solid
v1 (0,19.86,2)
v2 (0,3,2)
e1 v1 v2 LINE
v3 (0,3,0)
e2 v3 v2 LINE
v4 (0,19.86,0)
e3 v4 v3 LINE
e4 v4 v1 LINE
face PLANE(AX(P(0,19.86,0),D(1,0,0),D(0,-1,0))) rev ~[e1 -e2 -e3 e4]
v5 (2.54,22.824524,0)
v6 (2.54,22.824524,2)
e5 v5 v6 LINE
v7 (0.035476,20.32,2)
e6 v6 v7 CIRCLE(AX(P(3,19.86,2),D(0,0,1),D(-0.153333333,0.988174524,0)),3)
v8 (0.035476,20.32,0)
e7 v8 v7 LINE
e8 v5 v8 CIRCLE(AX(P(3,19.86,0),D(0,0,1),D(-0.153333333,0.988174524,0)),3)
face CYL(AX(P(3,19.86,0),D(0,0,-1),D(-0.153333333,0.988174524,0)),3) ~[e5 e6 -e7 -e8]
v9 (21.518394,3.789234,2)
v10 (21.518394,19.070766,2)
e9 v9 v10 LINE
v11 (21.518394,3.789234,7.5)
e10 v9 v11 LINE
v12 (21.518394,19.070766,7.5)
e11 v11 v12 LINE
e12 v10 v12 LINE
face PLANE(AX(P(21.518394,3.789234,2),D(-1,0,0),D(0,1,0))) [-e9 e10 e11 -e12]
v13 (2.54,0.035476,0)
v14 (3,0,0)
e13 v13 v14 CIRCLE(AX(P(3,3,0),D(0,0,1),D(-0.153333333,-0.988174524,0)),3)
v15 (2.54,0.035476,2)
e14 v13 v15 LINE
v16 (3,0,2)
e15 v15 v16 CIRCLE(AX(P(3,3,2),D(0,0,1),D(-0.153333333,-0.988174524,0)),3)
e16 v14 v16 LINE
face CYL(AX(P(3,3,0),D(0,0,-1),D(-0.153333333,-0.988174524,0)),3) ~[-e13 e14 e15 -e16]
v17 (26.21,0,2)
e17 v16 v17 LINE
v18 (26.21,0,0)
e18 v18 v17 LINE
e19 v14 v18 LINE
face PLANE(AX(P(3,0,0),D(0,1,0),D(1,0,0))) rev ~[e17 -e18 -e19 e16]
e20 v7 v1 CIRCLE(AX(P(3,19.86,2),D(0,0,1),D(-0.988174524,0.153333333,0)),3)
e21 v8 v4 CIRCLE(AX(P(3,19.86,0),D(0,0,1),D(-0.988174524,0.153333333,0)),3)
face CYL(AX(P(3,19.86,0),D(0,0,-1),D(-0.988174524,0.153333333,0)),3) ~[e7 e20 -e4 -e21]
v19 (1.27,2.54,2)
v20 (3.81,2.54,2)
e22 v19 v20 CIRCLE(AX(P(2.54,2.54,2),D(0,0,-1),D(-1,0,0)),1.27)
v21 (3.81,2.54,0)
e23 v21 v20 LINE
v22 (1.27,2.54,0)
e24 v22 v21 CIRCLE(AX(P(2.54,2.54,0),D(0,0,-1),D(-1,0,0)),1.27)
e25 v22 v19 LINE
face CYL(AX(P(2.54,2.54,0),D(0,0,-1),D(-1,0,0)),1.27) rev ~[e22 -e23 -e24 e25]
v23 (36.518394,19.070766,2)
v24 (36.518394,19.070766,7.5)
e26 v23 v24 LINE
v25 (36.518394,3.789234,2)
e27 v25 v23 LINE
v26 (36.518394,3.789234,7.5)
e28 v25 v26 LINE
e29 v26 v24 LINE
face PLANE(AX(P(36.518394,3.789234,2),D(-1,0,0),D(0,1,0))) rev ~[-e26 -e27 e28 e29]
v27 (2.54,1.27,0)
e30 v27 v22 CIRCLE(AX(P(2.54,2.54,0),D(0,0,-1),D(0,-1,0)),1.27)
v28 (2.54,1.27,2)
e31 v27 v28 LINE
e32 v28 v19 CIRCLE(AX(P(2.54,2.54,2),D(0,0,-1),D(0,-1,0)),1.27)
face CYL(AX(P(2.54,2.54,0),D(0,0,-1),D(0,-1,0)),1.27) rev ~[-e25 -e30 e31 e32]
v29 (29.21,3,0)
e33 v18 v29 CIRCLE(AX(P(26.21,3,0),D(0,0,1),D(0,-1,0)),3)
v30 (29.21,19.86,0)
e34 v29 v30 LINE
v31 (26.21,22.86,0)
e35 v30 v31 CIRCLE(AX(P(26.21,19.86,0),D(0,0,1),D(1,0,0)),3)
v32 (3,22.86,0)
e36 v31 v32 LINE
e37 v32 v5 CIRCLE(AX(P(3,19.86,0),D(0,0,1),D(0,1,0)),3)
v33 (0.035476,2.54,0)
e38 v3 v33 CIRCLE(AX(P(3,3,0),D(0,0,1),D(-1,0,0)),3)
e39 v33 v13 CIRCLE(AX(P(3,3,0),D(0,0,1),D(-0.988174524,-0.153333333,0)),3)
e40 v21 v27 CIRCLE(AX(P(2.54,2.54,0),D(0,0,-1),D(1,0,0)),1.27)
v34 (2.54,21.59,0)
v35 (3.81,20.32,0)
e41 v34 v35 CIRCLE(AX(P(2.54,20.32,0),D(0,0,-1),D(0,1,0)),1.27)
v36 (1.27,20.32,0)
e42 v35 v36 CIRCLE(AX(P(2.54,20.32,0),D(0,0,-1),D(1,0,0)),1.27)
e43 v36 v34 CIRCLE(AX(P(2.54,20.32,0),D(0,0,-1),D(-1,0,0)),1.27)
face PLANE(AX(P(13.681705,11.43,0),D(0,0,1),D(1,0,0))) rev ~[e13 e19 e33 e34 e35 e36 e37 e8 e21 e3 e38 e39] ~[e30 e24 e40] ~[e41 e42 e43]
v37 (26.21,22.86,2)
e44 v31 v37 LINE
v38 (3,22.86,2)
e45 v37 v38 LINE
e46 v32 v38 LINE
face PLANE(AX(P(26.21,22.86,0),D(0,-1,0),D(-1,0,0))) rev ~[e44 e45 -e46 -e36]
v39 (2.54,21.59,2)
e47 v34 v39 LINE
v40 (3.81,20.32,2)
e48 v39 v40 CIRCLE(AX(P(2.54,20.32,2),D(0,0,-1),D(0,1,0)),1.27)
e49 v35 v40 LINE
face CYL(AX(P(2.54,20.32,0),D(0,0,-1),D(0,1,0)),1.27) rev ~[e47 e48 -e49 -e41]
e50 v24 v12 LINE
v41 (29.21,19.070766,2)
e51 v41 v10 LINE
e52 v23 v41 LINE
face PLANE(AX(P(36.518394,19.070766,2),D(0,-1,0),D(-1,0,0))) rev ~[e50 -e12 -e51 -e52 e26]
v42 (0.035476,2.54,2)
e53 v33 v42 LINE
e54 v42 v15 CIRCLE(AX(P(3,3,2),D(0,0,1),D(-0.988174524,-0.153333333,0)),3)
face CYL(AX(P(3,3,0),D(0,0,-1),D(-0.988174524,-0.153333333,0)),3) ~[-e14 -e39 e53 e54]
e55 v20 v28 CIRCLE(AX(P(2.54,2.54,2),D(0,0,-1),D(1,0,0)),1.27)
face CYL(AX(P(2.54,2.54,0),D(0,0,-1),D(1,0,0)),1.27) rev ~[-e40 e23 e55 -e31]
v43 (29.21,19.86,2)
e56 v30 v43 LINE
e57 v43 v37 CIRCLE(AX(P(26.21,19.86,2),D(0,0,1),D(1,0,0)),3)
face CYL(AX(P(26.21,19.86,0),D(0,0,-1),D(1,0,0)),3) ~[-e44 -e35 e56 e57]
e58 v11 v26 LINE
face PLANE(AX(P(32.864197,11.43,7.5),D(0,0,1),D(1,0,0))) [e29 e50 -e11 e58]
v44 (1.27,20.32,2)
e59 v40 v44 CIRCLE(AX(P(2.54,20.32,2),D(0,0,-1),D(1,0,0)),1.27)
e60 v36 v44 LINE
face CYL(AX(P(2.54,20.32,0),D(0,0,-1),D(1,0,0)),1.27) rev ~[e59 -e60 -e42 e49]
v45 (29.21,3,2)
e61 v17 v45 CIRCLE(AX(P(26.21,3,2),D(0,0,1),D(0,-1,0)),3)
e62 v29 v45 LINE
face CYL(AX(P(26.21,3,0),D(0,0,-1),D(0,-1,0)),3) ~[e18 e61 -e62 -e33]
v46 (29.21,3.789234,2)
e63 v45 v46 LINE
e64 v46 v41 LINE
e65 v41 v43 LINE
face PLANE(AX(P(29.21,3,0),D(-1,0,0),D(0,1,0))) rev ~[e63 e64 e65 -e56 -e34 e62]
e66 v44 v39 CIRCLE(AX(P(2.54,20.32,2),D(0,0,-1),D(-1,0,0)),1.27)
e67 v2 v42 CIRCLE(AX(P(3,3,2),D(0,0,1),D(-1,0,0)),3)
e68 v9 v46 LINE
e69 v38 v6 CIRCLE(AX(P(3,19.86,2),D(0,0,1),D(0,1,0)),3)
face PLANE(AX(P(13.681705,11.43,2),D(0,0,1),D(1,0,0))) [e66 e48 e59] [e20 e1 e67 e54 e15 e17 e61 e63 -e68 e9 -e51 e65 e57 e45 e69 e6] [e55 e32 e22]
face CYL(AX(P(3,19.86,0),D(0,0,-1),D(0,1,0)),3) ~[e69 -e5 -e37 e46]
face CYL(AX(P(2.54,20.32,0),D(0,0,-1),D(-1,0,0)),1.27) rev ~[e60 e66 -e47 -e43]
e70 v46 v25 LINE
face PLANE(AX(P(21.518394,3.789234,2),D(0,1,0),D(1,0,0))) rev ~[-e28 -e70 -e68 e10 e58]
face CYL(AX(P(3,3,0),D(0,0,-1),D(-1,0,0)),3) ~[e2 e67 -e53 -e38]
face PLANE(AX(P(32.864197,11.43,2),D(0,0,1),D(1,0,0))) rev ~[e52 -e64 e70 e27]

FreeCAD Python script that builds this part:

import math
import FreeCAD as App
import Part
import Sketcher

V = App.Vector
Q = App.Units.Quantity

doc = App.newDocument("Part")
body = doc.addObject("PartDesign::Body", "Body")

sketch1 = body.newObject("Sketcher::SketchObject", "Sketch")
sketch1.AttachmentSupport = (doc.getObject("XY_Plane"), [""])
sketch1.MapMode = "FlatFace"
sketch1.addGeometry([
    Part.ArcOfCircle(Part.Circle(V(3, 3, 0), V(0, 0, 1), 3), math.radians(-98.82), math.radians(-90)),
    Part.LineSegment(V(3, 0, 0), V(26.21, 0, 0)),
    Part.ArcOfCircle(Part.Circle(V(26.21, 3, 0), V(0, 0, 1), 3), math.radians(-90), math.radians(0)),
    Part.LineSegment(V(29.21, 3, 0), V(29.21, 19.86, 0)),
    Part.ArcOfCircle(Part.Circle(V(26.21, 19.86, 0), V(0, 0, 1), 3), math.radians(0), math.radians(90)),
    Part.LineSegment(V(26.21, 22.86, 0), V(3, 22.86, 0)),
    Part.ArcOfCircle(Part.Circle(V(3, 19.86, 0), V(0, 0, 1), 3), math.radians(90), math.radians(98.82)),
    Part.ArcOfCircle(Part.Circle(V(3, 19.86, 0), V(0, 0, 1), 3), math.radians(99), math.radians(171)),
    Part.ArcOfCircle(Part.Circle(V(3, 19.86, 0), V(0, 0, 1), 3), math.radians(171.18), math.radians(180)),
    Part.LineSegment(V(0, 19.86, 0), V(0, 3, 0)),
    Part.ArcOfCircle(Part.Circle(V(3, 3, 0), V(0, 0, 1), 3), math.radians(-180), math.radians(-171.18)),
    Part.ArcOfCircle(Part.Circle(V(3, 3, 0), V(0, 0, 1), 3), math.radians(-171), math.radians(-99)),
    Part.ArcOfCircle(Part.Circle(V(2.54, 2.54, 0), V(0, 0, 1), 1.27), math.radians(0), math.radians(180)),
    Part.ArcOfCircle(Part.Circle(V(2.54, 2.54, 0), V(0, 0, 1), 1.27), math.radians(-90), math.radians(0)),
    Part.ArcOfCircle(Part.Circle(V(2.54, 2.54, 0), V(0, 0, 1), 1.27), math.radians(180), math.radians(270)),
    Part.ArcOfCircle(Part.Circle(V(2.54, 20.32, 0), V(0, 0, 1), 1.27), math.radians(0), math.radians(90)),
    Part.ArcOfCircle(Part.Circle(V(2.54, 20.32, 0), V(0, 0, 1), 1.27), math.radians(180), math.radians(360)),
    Part.ArcOfCircle(Part.Circle(V(2.54, 20.32, 0), V(0, 0, 1), 1.27), math.radians(90), math.radians(180)),
], False)
sketch1.addConstraint([
    Sketcher.Constraint("Tangent", 0, 2, 1, 1),
    Sketcher.Constraint("Tangent", 1, 2, 2, 1),
    Sketcher.Constraint("Tangent", 2, 2, 3, 1),
    Sketcher.Constraint("Tangent", 3, 2, 4, 1),
    Sketcher.Constraint("Tangent", 4, 2, 5, 1),
    Sketcher.Constraint("Tangent", 5, 2, 6, 1),
    Sketcher.Constraint("Tangent", 6, 2, 7, 1),
    Sketcher.Constraint("Tangent", 7, 2, 8, 1),
    Sketcher.Constraint("Tangent", 8, 2, 9, 1),
    Sketcher.Constraint("Tangent", 9, 2, 10, 1),
    Sketcher.Constraint("Tangent", 10, 2, 11, 1),
    Sketcher.Constraint("Tangent", 11, 2, 0, 1),
    Sketcher.Constraint("Tangent", 12, 1, 13, 2),
    Sketcher.Constraint("Tangent", 13, 1, 14, 2),
    Sketcher.Constraint("Tangent", 14, 1, 12, 2),
    Sketcher.Constraint("Tangent", 15, 1, 16, 2),
    Sketcher.Constraint("Tangent", 16, 1, 17, 2),
    Sketcher.Constraint("Tangent", 17, 1, 15, 2),
    Sketcher.Constraint("Horizontal", 1),
    Sketcher.Constraint("Vertical", 3),
    Sketcher.Constraint("Horizontal", 5),
    Sketcher.Constraint("Vertical", 9),
    Sketcher.Constraint("Coincident", 8, 3, 6, 3),
    Sketcher.Constraint("Coincident", 10, 3, 0, 3),
    Sketcher.Constraint("Equal", 0, 2),
    Sketcher.Constraint("Equal", 2, 4),
    Sketcher.Constraint("Equal", 4, 6),
    Sketcher.Constraint("Equal", 14, 15),
    Sketcher.Constraint("PointOnObject", 0, 2, -1),
    Sketcher.Constraint("PointOnObject", 8, 2, -2),
    Sketcher.Constraint("Horizontal", 17, 3, 7, 2),
    Sketcher.Constraint("Horizontal", 14, 3, 10, 2),
    Sketcher.Constraint("Horizontal", 10, 2, 12, 1),
    Sketcher.Constraint("Horizontal", 12, 1, 14, 1),
    Sketcher.Constraint("Horizontal", 7, 2, 15, 1),
    Sketcher.Constraint("Horizontal", 15, 1, 16, 1),
    Sketcher.Constraint("Vertical", 14, 3, 15, 3),
    Sketcher.Constraint("Vertical", 17, 3, 6, 2),
    Sketcher.Constraint("Vertical", 7, 2, 10, 2),
    Sketcher.Constraint("Vertical", 6, 2, 11, 2),
    Sketcher.Constraint("Vertical", 11, 2, 13, 1),
    Sketcher.Constraint("Vertical", 13, 1, 17, 1),
    Sketcher.Constraint("Radius", 0, Q("3 mm")),
    Sketcher.Constraint("Radius", 12, Q("1.27 mm")),
    Sketcher.Constraint("DistanceX", 1, 1, 1, 2, Q("23.21 mm")),
    Sketcher.Constraint("DistanceY", 3, 1, 3, 2, Q("16.86 mm")),
    Sketcher.Constraint("DistanceX", -1, 1, 12, 3, Q("2.54 mm")),
    Sketcher.Constraint("DistanceY", -1, 1, 12, 3, Q("2.54 mm")),
])
pad1 = body.newObject("PartDesign::Pad", "Pad")
pad1.Profile = sketch1
pad1.Length = 2

sketch2 = body.newObject("Sketcher::SketchObject", "Sketch001")
sketch2.AttachmentSupport = (doc.getObject("XY_Plane"), [""])
sketch2.MapMode = "FlatFace"
sketch2.AttachmentOffset = App.Placement(V(0, 0, 2), App.Rotation())
sketch2.addGeometry([
    Part.LineSegment(V(37, 4, 0), V(37, 19, 0)),
    Part.LineSegment(V(37, 19, 0), V(22, 19, 0)),
    Part.LineSegment(V(22, 19, 0), V(22, 4, 0)),
    Part.LineSegment(V(22, 4, 0), V(37, 4, 0)),
], False)
sketch2.addConstraint([
    Sketcher.Constraint("Coincident", 0, 2, 1, 1),
    Sketcher.Constraint("Coincident", 1, 2, 2, 1),
    Sketcher.Constraint("Coincident", 2, 2, 3, 1),
    Sketcher.Constraint("Coincident", 3, 2, 0, 1),
    Sketcher.Constraint("Vertical", 0),
    Sketcher.Constraint("Horizontal", 1),
    Sketcher.Constraint("Vertical", 2),
    Sketcher.Constraint("Horizontal", 3),
    Sketcher.Constraint("DistanceX", 1, 2, 1, 1, Q("15 mm")),
    Sketcher.Constraint("DistanceY", 0, 1, 0, 2, Q("15.281532 mm")),
    Sketcher.Constraint("DistanceX", -1, 1, 0, 2, Q("36.518394 mm")),
    Sketcher.Constraint("DistanceY", -1, 1, 0, 2, Q("19.070766 mm")),
])
pad2 = body.newObject("PartDesign::Pad", "Pad001")
pad2.Profile = sketch2
pad2.Length = 5.5

doc.recompute()
